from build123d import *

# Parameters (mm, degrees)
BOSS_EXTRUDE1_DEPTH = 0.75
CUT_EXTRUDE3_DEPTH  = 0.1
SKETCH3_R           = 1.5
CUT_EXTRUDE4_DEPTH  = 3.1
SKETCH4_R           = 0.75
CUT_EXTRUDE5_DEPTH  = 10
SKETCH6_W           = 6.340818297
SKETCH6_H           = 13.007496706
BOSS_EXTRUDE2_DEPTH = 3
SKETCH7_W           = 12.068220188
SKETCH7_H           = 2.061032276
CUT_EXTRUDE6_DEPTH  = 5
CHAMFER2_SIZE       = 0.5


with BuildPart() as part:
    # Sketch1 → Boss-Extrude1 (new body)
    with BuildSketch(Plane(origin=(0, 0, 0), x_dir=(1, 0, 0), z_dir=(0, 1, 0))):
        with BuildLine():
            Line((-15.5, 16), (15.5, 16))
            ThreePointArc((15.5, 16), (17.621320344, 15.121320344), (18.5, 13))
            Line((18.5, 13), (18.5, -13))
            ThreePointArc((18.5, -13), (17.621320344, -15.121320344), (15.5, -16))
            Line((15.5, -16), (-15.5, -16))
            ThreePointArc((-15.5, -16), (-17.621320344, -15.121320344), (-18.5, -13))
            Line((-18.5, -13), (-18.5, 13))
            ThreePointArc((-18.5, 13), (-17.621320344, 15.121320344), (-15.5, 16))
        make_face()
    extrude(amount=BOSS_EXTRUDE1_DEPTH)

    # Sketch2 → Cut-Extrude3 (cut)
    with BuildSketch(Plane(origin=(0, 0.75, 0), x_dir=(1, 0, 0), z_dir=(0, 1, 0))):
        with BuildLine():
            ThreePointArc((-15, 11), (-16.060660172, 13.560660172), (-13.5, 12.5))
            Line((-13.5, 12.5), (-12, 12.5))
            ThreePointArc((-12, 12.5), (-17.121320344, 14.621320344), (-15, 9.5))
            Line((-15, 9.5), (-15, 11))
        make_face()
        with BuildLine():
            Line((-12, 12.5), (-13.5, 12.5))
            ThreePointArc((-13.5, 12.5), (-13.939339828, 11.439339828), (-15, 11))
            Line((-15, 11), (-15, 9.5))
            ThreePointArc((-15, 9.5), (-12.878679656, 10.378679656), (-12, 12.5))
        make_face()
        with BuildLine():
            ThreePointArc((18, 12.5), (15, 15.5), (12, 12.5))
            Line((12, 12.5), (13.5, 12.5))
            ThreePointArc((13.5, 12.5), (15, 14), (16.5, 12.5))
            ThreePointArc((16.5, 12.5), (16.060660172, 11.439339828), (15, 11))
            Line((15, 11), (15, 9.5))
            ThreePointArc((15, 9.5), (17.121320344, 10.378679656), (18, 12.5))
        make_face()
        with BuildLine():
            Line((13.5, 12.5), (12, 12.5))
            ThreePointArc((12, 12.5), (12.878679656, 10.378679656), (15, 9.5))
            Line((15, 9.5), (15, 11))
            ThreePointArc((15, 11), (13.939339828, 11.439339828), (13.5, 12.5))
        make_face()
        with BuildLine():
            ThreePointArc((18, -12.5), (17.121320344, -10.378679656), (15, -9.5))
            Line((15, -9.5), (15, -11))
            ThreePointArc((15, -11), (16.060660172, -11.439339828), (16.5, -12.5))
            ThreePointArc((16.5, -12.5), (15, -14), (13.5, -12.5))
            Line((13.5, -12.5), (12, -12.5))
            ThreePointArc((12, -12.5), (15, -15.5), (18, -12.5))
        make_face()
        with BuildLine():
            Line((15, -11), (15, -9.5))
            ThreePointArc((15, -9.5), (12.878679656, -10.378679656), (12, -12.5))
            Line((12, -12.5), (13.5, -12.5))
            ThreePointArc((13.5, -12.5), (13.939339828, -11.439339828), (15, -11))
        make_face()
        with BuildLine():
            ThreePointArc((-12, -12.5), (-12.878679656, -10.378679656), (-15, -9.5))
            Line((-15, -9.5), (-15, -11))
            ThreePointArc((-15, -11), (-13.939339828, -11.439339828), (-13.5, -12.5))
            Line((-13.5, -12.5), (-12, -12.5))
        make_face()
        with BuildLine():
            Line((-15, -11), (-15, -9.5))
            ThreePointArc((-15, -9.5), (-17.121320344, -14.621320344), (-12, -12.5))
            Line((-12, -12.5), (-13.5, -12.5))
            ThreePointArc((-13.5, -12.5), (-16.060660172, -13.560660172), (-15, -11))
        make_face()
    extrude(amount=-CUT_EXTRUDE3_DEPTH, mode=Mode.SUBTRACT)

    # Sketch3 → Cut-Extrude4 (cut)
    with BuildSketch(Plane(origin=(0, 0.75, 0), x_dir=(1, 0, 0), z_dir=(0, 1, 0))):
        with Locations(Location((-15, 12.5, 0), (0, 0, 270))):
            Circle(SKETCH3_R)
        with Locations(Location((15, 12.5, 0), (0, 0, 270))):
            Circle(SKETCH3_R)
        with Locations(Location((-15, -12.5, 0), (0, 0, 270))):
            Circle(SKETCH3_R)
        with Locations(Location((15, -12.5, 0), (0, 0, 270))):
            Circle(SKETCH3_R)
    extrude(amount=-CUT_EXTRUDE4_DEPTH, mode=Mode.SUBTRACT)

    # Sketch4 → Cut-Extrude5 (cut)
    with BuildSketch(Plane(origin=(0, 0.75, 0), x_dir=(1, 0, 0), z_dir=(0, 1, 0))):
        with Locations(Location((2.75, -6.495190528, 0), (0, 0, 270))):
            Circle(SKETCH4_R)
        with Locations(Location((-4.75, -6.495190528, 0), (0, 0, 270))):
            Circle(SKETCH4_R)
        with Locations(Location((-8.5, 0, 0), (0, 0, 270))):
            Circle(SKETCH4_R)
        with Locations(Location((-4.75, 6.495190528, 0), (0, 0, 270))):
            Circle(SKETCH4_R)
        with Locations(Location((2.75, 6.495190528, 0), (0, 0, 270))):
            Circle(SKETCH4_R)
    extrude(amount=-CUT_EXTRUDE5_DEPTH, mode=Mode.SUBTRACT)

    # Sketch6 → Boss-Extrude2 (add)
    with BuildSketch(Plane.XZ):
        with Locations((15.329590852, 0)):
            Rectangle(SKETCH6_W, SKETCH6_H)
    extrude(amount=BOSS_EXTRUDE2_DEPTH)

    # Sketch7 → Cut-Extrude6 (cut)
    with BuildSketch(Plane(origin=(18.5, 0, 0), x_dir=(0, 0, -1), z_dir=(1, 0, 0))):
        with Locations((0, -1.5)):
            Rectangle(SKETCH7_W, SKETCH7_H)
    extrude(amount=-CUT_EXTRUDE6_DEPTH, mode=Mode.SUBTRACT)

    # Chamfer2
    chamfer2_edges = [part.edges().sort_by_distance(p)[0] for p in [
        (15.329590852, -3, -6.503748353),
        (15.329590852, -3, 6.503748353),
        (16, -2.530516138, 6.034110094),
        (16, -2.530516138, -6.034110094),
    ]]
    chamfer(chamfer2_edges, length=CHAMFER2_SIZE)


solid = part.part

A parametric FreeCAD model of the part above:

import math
import FreeCAD as App
import Part
import Sketcher
Q = App.Units.Quantity


def edges_at(feature, points):
    """Names of the edges that pass closest to the given points."""
    edges = feature.Shape.Edges
    near = lambda p: min(range(len(edges)), key=lambda i: edges[i].distToShape(Part.Vertex(*p))[0])
    return sorted({f"Edge{near(p) + 1}" for p in points})

doc = App.newDocument("Part")
body = doc.addObject("PartDesign::Body", "Body")

sketch1 = body.newObject("Sketcher::SketchObject", "Sketch")
sketch1.AttachmentSupport = (doc.getObject("XZ_Plane"), [""])
sketch1.MapMode = "FlatFace"
sketch1.addGeometry(Part.LineSegment(App.Vector(15.5, -16, 0), App.Vector(-15.5, -16, 0)), False)
sketch1.addGeometry(Part.ArcOfCircle(Part.Circle(App.Vector(-15.5, -13, 0), App.Vector(0, 0, 1), 3), math.radians(180), math.radians(270)), False)
sketch1.addGeometry(Part.LineSegment(App.Vector(-18.5, -13, 0), App.Vector(-18.5, 13, 0)), False)
sketch1.addGeometry(Part.ArcOfCircle(Part.Circle(App.Vector(-15.5, 13, 0), App.Vector(0, 0, 1), 3), math.radians(90), math.radians(180)), False)
sketch1.addGeometry(Part.LineSegment(App.Vector(-15.5, 16, 0), App.Vector(15.5, 16, 0)), False)
sketch1.addGeometry(Part.ArcOfCircle(Part.Circle(App.Vector(15.5, 13, 0), App.Vector(0, 0, 1), 3), math.radians(0), math.radians(90)), False)
sketch1.addGeometry(Part.LineSegment(App.Vector(18.5, 13, 0), App.Vector(18.5, -13, 0)), False)
sketch1.addGeometry(Part.ArcOfCircle(Part.Circle(App.Vector(15.5, -13, 0), App.Vector(0, 0, 1), 3), math.radians(-90), math.radians(0)), False)
sketch1.addConstraint(Sketcher.Constraint("Tangent", 0, 2, 1, 2))
sketch1.addConstraint(Sketcher.Constraint("Tangent", 1, 1, 2, 1))
sketch1.addConstraint(Sketcher.Constraint("Tangent", 2, 2, 3, 2))
sketch1.addConstraint(Sketcher.Constraint("Tangent", 3, 1, 4, 1))
sketch1.addConstraint(Sketcher.Constraint("Tangent", 4, 2, 5, 2))
sketch1.addConstraint(Sketcher.Constraint("Tangent", 5, 1, 6, 1))
sketch1.addConstraint(Sketcher.Constraint("Tangent", 6, 2, 7, 2))
sketch1.addConstraint(Sketcher.Constraint("Tangent", 7, 1, 0, 1))
sketch1.addConstraint(Sketcher.Constraint("Horizontal", 0))
sketch1.addConstraint(Sketcher.Constraint("Vertical", 2))
sketch1.addConstraint(Sketcher.Constraint("Horizontal", 4))
sketch1.addConstraint(Sketcher.Constraint("Vertical", 6))
sketch1.addConstraint(Sketcher.Constraint("Equal", 1, 3))
sketch1.addConstraint(Sketcher.Constraint("Equal", 3, 5))
sketch1.addConstraint(Sketcher.Constraint("Equal", 5, 7))
sketch1.addConstraint(Sketcher.Constraint("Symmetric", 1, 3, 5, 3, -1, 1))
sketch1.addConstraint(Sketcher.Constraint("Radius", 1, Q("3 mm")))
sketch1.addConstraint(Sketcher.Constraint("DistanceX", 0, 2, 0, 1, Q("31 mm")))
sketch1.addConstraint(Sketcher.Constraint("DistanceY", 2, 1, 2, 2, Q("26 mm")))
pad1 = body.newObject("PartDesign::Pad", "Pad")
pad1.Profile = sketch1
pad1.Length = 0.75
pad1.Reversed = True

sketch2 = body.newObject("Sketcher::SketchObject", "Sketch001")
sketch2.AttachmentSupport = (doc.getObject("XZ_Plane"), [""])
sketch2.MapMode = "FlatFace"
sketch2.AttachmentOffset = App.Placement(App.Vector(0, 0, -0.75), App.Rotation())
sketch2.addGeometry(Part.ArcOfCircle(Part.Circle(App.Vector(-15, -12.5, 0), App.Vector(0, 0, 1), 3), math.radians(90), math.radians(360)), False)
sketch2.addGeometry(Part.ArcOfCircle(Part.Circle(App.Vector(-15, -12.5, 0), App.Vector(0, 0, 1), 3), math.radians(0), math.radians(90)), False)
sketch2.addGeometry(Part.ArcOfCircle(Part.Circle(App.Vector(-15, -12.5, 0), App.Vector(0, 0, 1), 1.5), math.radians(90), math.radians(360)), False)
sketch2.addGeometry(Part.ArcOfCircle(Part.Circle(App.Vector(-15, -12.5, 0), App.Vector(0, 0, 1), 1.5), math.radians(0), math.radians(90)), False)
sketch2.addGeometry(Part.ArcOfCircle(Part.Circle(App.Vector(15, -12.5, 0), App.Vector(0, 0, 1), 3), math.radians(180), math.radians(360)), False)
sketch2.addGeometry(Part.ArcOfCircle(Part.Circle(App.Vector(15, -12.5, 0), App.Vector(0, 0, 1), 3), math.radians(90), math.radians(180)), False)
sketch2.addGeometry(Part.ArcOfCircle(Part.Circle(App.Vector(15, -12.5, 0), App.Vector(0, 0, 1), 3), math.radians(0), math.radians(90)), False)
sketch2.addGeometry(Part.ArcOfCircle(Part.Circle(App.Vector(15, -12.5, 0), App.Vector(0, 0, 1), 1.5), math.radians(0), math.radians(90)), False)
sketch2.addGeometry(Part.ArcOfCircle(Part.Circle(App.Vector(15, -12.5, 0), App.Vector(0, 0, 1), 1.5), math.radians(90), math.radians(180)), False)
sketch2.addGeometry(Part.ArcOfCircle(Part.Circle(App.Vector(15, -12.5, 0), App.Vector(0, 0, 1), 1.5), math.radians(180), math.radians(360)), False)
sketch2.addGeometry(Part.ArcOfCircle(Part.Circle(App.Vector(15, 12.5, 0), App.Vector(0, 0, 1), 3), math.radians(-90), math.radians(0)), False)
sketch2.addGeometry(Part.ArcOfCircle(Part.Circle(App.Vector(15, 12.5, 0), App.Vector(0, 0, 1), 3), math.radians(180), math.radians(270)), False)
sketch2.addGeometry(Part.ArcOfCircle(Part.Circle(App.Vector(15, 12.5, 0), App.Vector(0, 0, 1), 3), math.radians(0), math.radians(180)), False)
sketch2.addGeometry(Part.ArcOfCircle(Part.Circle(App.Vector(15, 12.5, 0), App.Vector(0, 0, 1), 1.5), math.radians(0), math.radians(180)), False)
sketch2.addGeometry(Part.ArcOfCircle(Part.Circle(App.Vector(15, 12.5, 0), App.Vector(0, 0, 1), 1.5), math.radians(180), math.radians(270)), False)
sketch2.addGeometry(Part.ArcOfCircle(Part.Circle(App.Vector(15, 12.5, 0), App.Vector(0, 0, 1), 1.5), math.radians(-90), math.radians(0)), False)
sketch2.addGeometry(Part.ArcOfCircle(Part.Circle(App.Vector(-15, 12.5, 0), App.Vector(0, 0, 1), 3), math.radians(-90), math.radians(0)), False)
sketch2.addGeometry(Part.ArcOfCircle(Part.Circle(App.Vector(-15, 12.5, 0), App.Vector(0, 0, 1), 3), math.radians(0), math.radians(270)), False)
sketch2.addGeometry(Part.ArcOfCircle(Part.Circle(App.Vector(-15, 12.5, 0), App.Vector(0, 0, 1), 1.5), math.radians(-90), math.radians(0)), False)
sketch2.addGeometry(Part.ArcOfCircle(Part.Circle(App.Vector(-15, 12.5, 0), App.Vector(0, 0, 1), 1.5), math.radians(0), math.radians(270)), False)
sketch2.addConstraint(Sketcher.Constraint("Tangent", 0, 1, 1, 2))
sketch2.addConstraint(Sketcher.Constraint("Coincident", 1, 1, 0, 2))
sketch2.addConstraint(Sketcher.Constraint("Tangent", 2, 1, 3, 2))
sketch2.addConstraint(Sketcher.Constraint("Coincident", 3, 1, 2, 2))
sketch2.addConstraint(Sketcher.Constraint("Tangent", 4, 1, 5, 2))
sketch2.addConstraint(Sketcher.Constraint("Tangent", 5, 1, 6, 2))
sketch2.addConstraint(Sketcher.Constraint("Tangent", 6, 1, 4, 2))
sketch2.addConstraint(Sketcher.Constraint("Tangent", 7, 2, 8, 1))
sketch2.addConstraint(Sketcher.Constraint("Tangent", 8, 2, 9, 1))
sketch2.addConstraint(Sketcher.Constraint("Tangent", 9, 2, 7, 1))
sketch2.addConstraint(Sketcher.Constraint("Tangent", 10, 1, 11, 2))
sketch2.addConstraint(Sketcher.Constraint("Tangent", 11, 1, 12, 2))
sketch2.addConstraint(Sketcher.Constraint("Tangent", 12, 1, 10, 2))
sketch2.addConstraint(Sketcher.Constraint("Tangent", 13, 2, 14, 1))
sketch2.addConstraint(Sketcher.Constraint("Tangent", 14, 2, 15, 1))
sketch2.addConstraint(Sketcher.Constraint("Tangent", 15, 2, 13, 1))
sketch2.addConstraint(Sketcher.Constraint("Tangent", 16, 1, 17, 2))
sketch2.addConstraint(Sketcher.Constraint("Coincident", 17, 1, 16, 2))
sketch2.addConstraint(Sketcher.Constraint("Tangent", 18, 1, 19, 2))
sketch2.addConstraint(Sketcher.Constraint("Coincident", 19, 1, 18, 2))
sketch2.addConstraint(Sketcher.Constraint("Coincident", 2, 3, 0, 3))
sketch2.addConstraint(Sketcher.Constraint("Coincident", 7, 3, 4, 3))
sketch2.addConstraint(Sketcher.Constraint("Coincident", 13, 3, 10, 3))
sketch2.addConstraint(Sketcher.Constraint("Coincident", 18, 3, 16, 3))
sketch2.addConstraint(Sketcher.Constraint("Equal", 1, 4))
sketch2.addConstraint(Sketcher.Constraint("Equal", 3, 7))
sketch2.addConstraint(Sketcher.Constraint("Equal", 6, 10))
sketch2.addConstraint(Sketcher.Constraint("Equal", 9, 13))
sketch2.addConstraint(Sketcher.Constraint("Equal", 12, 16))
sketch2.addConstraint(Sketcher.Constraint("Equal", 15, 18))
sketch2.addConstraint(Sketcher.Constraint("Symmetric", 0, 3, 10, 3, -1, 1))
sketch2.addConstraint(Sketcher.Constraint("Symmetric", 4, 3, 16, 3, -1, 1))
sketch2.addConstraint(Sketcher.Constraint("Symmetric", 0, 3, 4, 3, -2))
sketch2.addConstraint(Sketcher.Constraint("Horizontal", 9, 3, 1, 1))
sketch2.addConstraint(Sketcher.Constraint("Horizontal", 1, 1, 3, 1))
sketch2.addConstraint(Sketcher.Constraint("Horizontal", 3, 1, 4, 1))
sketch2.addConstraint(Sketcher.Constraint("Horizontal", 4, 1, 6, 1))
sketch2.addConstraint(Sketcher.Constraint("Horizontal", 6, 1, 8, 2))
sketch2.addConstraint(Sketcher.Constraint("Horizontal", 8, 2, 9, 2))
sketch2.addConstraint(Sketcher.Constraint("Horizontal", 19, 3, 11, 1))
sketch2.addConstraint(Sketcher.Constraint("Horizontal", 11, 1, 12, 1))
sketch2.addConstraint(Sketcher.Constraint("Horizontal", 12, 1, 13, 2))
sketch2.addConstraint(Sketcher.Constraint("Horizontal", 13, 2, 15, 2))
sketch2.addConstraint(Sketcher.Constraint("Horizontal", 15, 2, 17, 1))
sketch2.addConstraint(Sketcher.Constraint("Horizontal", 17, 1, 19, 1))
sketch2.addConstraint(Sketcher.Constraint("Vertical", 19, 3, 0, 1))
sketch2.addConstraint(Sketcher.Constraint("Vertical", 0, 1, 2, 1))
sketch2.addConstraint(Sketcher.Constraint("Vertical", 15, 3, 5, 1))
sketch2.addConstraint(Sketcher.Constraint("Vertical", 5, 1, 7, 2))
sketch2.addConstraint(Sketcher.Constraint("Vertical", 7, 2, 10, 1))
sketch2.addConstraint(Sketcher.Constraint("Vertical", 10, 1, 14, 2))
sketch2.addConstraint(Sketcher.Constraint("Vertical", 2, 1, 16, 1))
sketch2.addConstraint(Sketcher.Constraint("Vertical", 16, 1, 18, 1))
sketch2.addConstraint(Sketcher.Constraint("Radius", 0, Q("3 mm")))
sketch2.addConstraint(Sketcher.Constraint("Radius", 2, Q("1.5 mm")))
sketch2.addConstraint(Sketcher.Constraint("DistanceX", 0, 3, -1, 1, Q("15 mm")))
sketch2.addConstraint(Sketcher.Constraint("DistanceY", 2, 1, -1, 1, Q("11 mm")))
pocket1 = body.newObject("PartDesign::Pocket", "Pocket")
pocket1.Profile = sketch2
pocket1.Length = 0.1
pocket1.Reversed = True

sketch3 = body.newObject("Sketcher::SketchObject", "Sketch002")
sketch3.AttachmentSupport = (doc.getObject("XZ_Plane"), [""])
sketch3.MapMode = "FlatFace"
sketch3.AttachmentOffset = App.Placement(App.Vector(0, 0, -0.75), App.Rotation())
sketch3.addGeometry(Part.Circle(App.Vector(-15, -12.5, 0), App.Vector(0, 0, 1), 1.5), False)
sketch3.addGeometry(Part.Circle(App.Vector(15, -12.5, 0), App.Vector(0, 0, 1), 1.5), False)
sketch3.addGeometry(Part.Circle(App.Vector(-15, 12.5, 0), App.Vector(0, 0, 1), 1.5), False)
sketch3.addGeometry(Part.Circle(App.Vector(15, 12.5, 0), App.Vector(0, 0, 1), 1.5), False)
sketch3.addConstraint(Sketcher.Constraint("Equal", 0, 1))
sketch3.addConstraint(Sketcher.Constraint("Equal", 1, 2))
sketch3.addConstraint(Sketcher.Constraint("Equal", 2, 3))
sketch3.addConstraint(Sketcher.Constraint("Symmetric", 1, 3, 2, 3, -1, 1))
sketch3.addConstraint(Sketcher.Constraint("Symmetric", 0, 3, 3, 3, -1, 1))
sketch3.addConstraint(Sketcher.Constraint("Symmetric", 0, 3, 1, 3, -2))
sketch3.addConstraint(Sketcher.Constraint("Diameter", 0, Q("3 mm")))
sketch3.addConstraint(Sketcher.Constraint("DistanceX", 0, 3, -1, 1, Q("15 mm")))
sketch3.addConstraint(Sketcher.Constraint("DistanceY", 0, 3, 2, 3, Q("25 mm")))
pocket2 = body.newObject("PartDesign::Pocket", "Pocket001")
pocket2.Profile = sketch3
pocket2.Length = 3.1
pocket2.Reversed = True

sketch4 = body.newObject("Sketcher::SketchObject", "Sketch003")
sketch4.AttachmentSupport = (doc.getObject("XZ_Plane"), [""])
sketch4.MapMode = "FlatFace"
sketch4.AttachmentOffset = App.Placement(App.Vector(0, 0, -0.75), App.Rotation())
sketch4.addGeometry(Part.Circle(App.Vector(2.75, 6.495191, 0), App.Vector(0, 0, 1), 0.75), False)
sketch4.addGeometry(Part.Circle(App.Vector(-4.75, 6.495191, 0), App.Vector(0, 0, 1), 0.75), False)
sketch4.addGeometry(Part.Circle(App.Vector(-8.5, 0, 0), App.Vector(0, 0, 1), 0.75), False)
sketch4.addGeometry(Part.Circle(App.Vector(-4.75, -6.495191, 0), App.Vector(0, 0, 1), 0.75), False)
sketch4.addGeometry(Part.Circle(App.Vector(2.75, -6.495191, 0), App.Vector(0, 0, 1), 0.75), False)
sketch4.addConstraint(Sketcher.Constraint("Equal", 0, 1))
sketch4.addConstraint(Sketcher.Constraint("Equal", 1, 2))
sketch4.addConstraint(Sketcher.Constraint("Equal", 2, 3))
sketch4.addConstraint(Sketcher.Constraint("Equal", 3, 4))
sketch4.addConstraint(Sketcher.Constraint("Symmetric", 1, 3, 3, 3, -1))
sketch4.addConstraint(Sketcher.Constraint("Symmetric", 0, 3, 4, 3, -1))
sketch4.addConstraint(Sketcher.Constraint("PointOnObject", 2, 3, -1))
sketch4.addConstraint(Sketcher.Constraint("Horizontal", 0, 3, 1, 3))
sketch4.addConstraint(Sketcher.Constraint("Diameter", 0, Q("1.5 mm")))
sketch4.addConstraint(Sketcher.Constraint("DistanceX", 2, 3, -1, 1, Q("8.5 mm")))
sketch4.addConstraint(Sketcher.Constraint("DistanceX", 1, 3, 0, 3, Q("7.5 mm")))
sketch4.addConstraint(Sketcher.Constraint("DistanceX", -1, 1, 0, 3, Q("2.75 mm")))
sketch4.addConstraint(Sketcher.Constraint("DistanceY", -1, 1, 0, 3, Q("6.495191 mm")))
pocket3 = body.newObject("PartDesign::Pocket", "Pocket002")
pocket3.Profile = sketch4
pocket3.Length = 10
pocket3.Reversed = True

sketch5 = body.newObject("Sketcher::SketchObject", "Sketch004")
sketch5.AttachmentSupport = (doc.getObject("XZ_Plane"), [""])
sketch5.MapMode = "FlatFace"
sketch5.addGeometry(Part.LineSegment(App.Vector(12.159182, 6.503748, 0), App.Vector(12.159182, -6.503748, 0)), False)
sketch5.addGeometry(Part.LineSegment(App.Vector(12.159182, -6.503748, 0), App.Vector(18.5, -6.503748, 0)), False)
sketch5.addGeometry(Part.LineSegment(App.Vector(18.5, -6.503748, 0), App.Vector(18.5, 6.503748, 0)), False)
sketch5.addGeometry(Part.LineSegment(App.Vector(18.5, 6.503748, 0), App.Vector(12.159182, 6.503748, 0)), False)
sketch5.addConstraint(Sketcher.Constraint("Coincident", 0, 2, 1, 1))
sketch5.addConstraint(Sketcher.Constraint("Coincident", 1, 2, 2, 1))
sketch5.addConstraint(Sketcher.Constraint("Coincident", 2, 2, 3, 1))
sketch5.addConstraint(Sketcher.Constraint("Coincident", 3, 2, 0, 1))
sketch5.addConstraint(Sketcher.Constraint("Vertical", 0))
sketch5.addConstraint(Sketcher.Constraint("Horizontal", 1))
sketch5.addConstraint(Sketcher.Constraint("Vertical", 2))
sketch5.addConstraint(Sketcher.Constraint("Horizontal", 3))
sketch5.addConstraint(Sketcher.Constraint("DistanceX", -1, 1, 1, 2, Q("18.5 mm")))
sketch5.addConstraint(Sketcher.Constraint("DistanceX", 1, 1, 1, 2, Q("6.340818 mm")))
sketch5.addConstraint(Sketcher.Constraint("DistanceY", 0, 2, 0, 1, Q("13.007497 mm")))
sketch5.addConstraint(Sketcher.Constraint("DistanceY", 0, 2, -1, 1, Q("6.503748 mm")))
pad2 = body.newObject("PartDesign::Pad", "Pad001")
pad2.Profile = sketch5
pad2.Length = 3

sketch6 = body.newObject("Sketcher::SketchObject", "Sketch005")
sketch6.AttachmentSupport = (doc.getObject("YZ_Plane"), [""])
sketch6.MapMode = "FlatFace"
sketch6.AttachmentOffset = App.Placement(App.Vector(0, 0, 18.5), App.Rotation())
sketch6.addGeometry(Part.LineSegment(App.Vector(-0.469484, 6.03411, 0), App.Vector(-2.530516, 6.03411, 0)), False)
sketch6.addGeometry(Part.LineSegment(App.Vector(-2.530516, 6.03411, 0), App.Vector(-2.530516, -6.03411, 0)), False)
sketch6.addGeometry(Part.LineSegment(App.Vector(-2.530516, -6.03411, 0), App.Vector(-0.469484, -6.03411, 0)), False)
sketch6.addGeometry(Part.LineSegment(App.Vector(-0.469484, -6.03411, 0), App.Vector(-0.469484, 6.03411, 0)), False)
sketch6.addConstraint(Sketcher.Constraint("Coincident", 0, 2, 1, 1))
sketch6.addConstraint(Sketcher.Constraint("Coincident", 1, 2, 2, 1))
sketch6.addConstraint(Sketcher.Constraint("Coincident", 2, 2, 3, 1))
sketch6.addConstraint(Sketcher.Constraint("Coincident", 3, 2, 0, 1))
sketch6.addConstraint(Sketcher.Constraint("Horizontal", 0))
sketch6.addConstraint(Sketcher.Constraint("Vertical", 1))
sketch6.addConstraint(Sketcher.Constraint("Horizontal", 2))
sketch6.addConstraint(Sketcher.Constraint("Vertical", 3))
sketch6.addConstraint(Sketcher.Constraint("DistanceY", 1, 2, 1, 1, Q("12.06822 mm")))
sketch6.addConstraint(Sketcher.Constraint("DistanceX", 0, 2, 0, 1, Q("2.061032 mm")))
sketch6.addConstraint(Sketcher.Constraint("DistanceY", -1, 1, 0, 2, Q("6.03411 mm")))
sketch6.addConstraint(Sketcher.Constraint("DistanceX", 0, 2, -1, 1, Q("2.530516 mm")))
pocket4 = body.newObject("PartDesign::Pocket", "Pocket003")
pocket4.Profile = sketch6
pocket4.Length = 5
doc.recompute()

chamfer = body.newObject("PartDesign::Chamfer", "Chamfer")
chamfer.Base = (pocket4, edges_at(pocket4, [
    (15.33, -3, -6.504),
    (15.33, -3, 6.504),
    (16, -2.531, 6.034),
    (16, -2.531, -6.034),
]))
chamfer.Size = 0.5

doc.recompute()
